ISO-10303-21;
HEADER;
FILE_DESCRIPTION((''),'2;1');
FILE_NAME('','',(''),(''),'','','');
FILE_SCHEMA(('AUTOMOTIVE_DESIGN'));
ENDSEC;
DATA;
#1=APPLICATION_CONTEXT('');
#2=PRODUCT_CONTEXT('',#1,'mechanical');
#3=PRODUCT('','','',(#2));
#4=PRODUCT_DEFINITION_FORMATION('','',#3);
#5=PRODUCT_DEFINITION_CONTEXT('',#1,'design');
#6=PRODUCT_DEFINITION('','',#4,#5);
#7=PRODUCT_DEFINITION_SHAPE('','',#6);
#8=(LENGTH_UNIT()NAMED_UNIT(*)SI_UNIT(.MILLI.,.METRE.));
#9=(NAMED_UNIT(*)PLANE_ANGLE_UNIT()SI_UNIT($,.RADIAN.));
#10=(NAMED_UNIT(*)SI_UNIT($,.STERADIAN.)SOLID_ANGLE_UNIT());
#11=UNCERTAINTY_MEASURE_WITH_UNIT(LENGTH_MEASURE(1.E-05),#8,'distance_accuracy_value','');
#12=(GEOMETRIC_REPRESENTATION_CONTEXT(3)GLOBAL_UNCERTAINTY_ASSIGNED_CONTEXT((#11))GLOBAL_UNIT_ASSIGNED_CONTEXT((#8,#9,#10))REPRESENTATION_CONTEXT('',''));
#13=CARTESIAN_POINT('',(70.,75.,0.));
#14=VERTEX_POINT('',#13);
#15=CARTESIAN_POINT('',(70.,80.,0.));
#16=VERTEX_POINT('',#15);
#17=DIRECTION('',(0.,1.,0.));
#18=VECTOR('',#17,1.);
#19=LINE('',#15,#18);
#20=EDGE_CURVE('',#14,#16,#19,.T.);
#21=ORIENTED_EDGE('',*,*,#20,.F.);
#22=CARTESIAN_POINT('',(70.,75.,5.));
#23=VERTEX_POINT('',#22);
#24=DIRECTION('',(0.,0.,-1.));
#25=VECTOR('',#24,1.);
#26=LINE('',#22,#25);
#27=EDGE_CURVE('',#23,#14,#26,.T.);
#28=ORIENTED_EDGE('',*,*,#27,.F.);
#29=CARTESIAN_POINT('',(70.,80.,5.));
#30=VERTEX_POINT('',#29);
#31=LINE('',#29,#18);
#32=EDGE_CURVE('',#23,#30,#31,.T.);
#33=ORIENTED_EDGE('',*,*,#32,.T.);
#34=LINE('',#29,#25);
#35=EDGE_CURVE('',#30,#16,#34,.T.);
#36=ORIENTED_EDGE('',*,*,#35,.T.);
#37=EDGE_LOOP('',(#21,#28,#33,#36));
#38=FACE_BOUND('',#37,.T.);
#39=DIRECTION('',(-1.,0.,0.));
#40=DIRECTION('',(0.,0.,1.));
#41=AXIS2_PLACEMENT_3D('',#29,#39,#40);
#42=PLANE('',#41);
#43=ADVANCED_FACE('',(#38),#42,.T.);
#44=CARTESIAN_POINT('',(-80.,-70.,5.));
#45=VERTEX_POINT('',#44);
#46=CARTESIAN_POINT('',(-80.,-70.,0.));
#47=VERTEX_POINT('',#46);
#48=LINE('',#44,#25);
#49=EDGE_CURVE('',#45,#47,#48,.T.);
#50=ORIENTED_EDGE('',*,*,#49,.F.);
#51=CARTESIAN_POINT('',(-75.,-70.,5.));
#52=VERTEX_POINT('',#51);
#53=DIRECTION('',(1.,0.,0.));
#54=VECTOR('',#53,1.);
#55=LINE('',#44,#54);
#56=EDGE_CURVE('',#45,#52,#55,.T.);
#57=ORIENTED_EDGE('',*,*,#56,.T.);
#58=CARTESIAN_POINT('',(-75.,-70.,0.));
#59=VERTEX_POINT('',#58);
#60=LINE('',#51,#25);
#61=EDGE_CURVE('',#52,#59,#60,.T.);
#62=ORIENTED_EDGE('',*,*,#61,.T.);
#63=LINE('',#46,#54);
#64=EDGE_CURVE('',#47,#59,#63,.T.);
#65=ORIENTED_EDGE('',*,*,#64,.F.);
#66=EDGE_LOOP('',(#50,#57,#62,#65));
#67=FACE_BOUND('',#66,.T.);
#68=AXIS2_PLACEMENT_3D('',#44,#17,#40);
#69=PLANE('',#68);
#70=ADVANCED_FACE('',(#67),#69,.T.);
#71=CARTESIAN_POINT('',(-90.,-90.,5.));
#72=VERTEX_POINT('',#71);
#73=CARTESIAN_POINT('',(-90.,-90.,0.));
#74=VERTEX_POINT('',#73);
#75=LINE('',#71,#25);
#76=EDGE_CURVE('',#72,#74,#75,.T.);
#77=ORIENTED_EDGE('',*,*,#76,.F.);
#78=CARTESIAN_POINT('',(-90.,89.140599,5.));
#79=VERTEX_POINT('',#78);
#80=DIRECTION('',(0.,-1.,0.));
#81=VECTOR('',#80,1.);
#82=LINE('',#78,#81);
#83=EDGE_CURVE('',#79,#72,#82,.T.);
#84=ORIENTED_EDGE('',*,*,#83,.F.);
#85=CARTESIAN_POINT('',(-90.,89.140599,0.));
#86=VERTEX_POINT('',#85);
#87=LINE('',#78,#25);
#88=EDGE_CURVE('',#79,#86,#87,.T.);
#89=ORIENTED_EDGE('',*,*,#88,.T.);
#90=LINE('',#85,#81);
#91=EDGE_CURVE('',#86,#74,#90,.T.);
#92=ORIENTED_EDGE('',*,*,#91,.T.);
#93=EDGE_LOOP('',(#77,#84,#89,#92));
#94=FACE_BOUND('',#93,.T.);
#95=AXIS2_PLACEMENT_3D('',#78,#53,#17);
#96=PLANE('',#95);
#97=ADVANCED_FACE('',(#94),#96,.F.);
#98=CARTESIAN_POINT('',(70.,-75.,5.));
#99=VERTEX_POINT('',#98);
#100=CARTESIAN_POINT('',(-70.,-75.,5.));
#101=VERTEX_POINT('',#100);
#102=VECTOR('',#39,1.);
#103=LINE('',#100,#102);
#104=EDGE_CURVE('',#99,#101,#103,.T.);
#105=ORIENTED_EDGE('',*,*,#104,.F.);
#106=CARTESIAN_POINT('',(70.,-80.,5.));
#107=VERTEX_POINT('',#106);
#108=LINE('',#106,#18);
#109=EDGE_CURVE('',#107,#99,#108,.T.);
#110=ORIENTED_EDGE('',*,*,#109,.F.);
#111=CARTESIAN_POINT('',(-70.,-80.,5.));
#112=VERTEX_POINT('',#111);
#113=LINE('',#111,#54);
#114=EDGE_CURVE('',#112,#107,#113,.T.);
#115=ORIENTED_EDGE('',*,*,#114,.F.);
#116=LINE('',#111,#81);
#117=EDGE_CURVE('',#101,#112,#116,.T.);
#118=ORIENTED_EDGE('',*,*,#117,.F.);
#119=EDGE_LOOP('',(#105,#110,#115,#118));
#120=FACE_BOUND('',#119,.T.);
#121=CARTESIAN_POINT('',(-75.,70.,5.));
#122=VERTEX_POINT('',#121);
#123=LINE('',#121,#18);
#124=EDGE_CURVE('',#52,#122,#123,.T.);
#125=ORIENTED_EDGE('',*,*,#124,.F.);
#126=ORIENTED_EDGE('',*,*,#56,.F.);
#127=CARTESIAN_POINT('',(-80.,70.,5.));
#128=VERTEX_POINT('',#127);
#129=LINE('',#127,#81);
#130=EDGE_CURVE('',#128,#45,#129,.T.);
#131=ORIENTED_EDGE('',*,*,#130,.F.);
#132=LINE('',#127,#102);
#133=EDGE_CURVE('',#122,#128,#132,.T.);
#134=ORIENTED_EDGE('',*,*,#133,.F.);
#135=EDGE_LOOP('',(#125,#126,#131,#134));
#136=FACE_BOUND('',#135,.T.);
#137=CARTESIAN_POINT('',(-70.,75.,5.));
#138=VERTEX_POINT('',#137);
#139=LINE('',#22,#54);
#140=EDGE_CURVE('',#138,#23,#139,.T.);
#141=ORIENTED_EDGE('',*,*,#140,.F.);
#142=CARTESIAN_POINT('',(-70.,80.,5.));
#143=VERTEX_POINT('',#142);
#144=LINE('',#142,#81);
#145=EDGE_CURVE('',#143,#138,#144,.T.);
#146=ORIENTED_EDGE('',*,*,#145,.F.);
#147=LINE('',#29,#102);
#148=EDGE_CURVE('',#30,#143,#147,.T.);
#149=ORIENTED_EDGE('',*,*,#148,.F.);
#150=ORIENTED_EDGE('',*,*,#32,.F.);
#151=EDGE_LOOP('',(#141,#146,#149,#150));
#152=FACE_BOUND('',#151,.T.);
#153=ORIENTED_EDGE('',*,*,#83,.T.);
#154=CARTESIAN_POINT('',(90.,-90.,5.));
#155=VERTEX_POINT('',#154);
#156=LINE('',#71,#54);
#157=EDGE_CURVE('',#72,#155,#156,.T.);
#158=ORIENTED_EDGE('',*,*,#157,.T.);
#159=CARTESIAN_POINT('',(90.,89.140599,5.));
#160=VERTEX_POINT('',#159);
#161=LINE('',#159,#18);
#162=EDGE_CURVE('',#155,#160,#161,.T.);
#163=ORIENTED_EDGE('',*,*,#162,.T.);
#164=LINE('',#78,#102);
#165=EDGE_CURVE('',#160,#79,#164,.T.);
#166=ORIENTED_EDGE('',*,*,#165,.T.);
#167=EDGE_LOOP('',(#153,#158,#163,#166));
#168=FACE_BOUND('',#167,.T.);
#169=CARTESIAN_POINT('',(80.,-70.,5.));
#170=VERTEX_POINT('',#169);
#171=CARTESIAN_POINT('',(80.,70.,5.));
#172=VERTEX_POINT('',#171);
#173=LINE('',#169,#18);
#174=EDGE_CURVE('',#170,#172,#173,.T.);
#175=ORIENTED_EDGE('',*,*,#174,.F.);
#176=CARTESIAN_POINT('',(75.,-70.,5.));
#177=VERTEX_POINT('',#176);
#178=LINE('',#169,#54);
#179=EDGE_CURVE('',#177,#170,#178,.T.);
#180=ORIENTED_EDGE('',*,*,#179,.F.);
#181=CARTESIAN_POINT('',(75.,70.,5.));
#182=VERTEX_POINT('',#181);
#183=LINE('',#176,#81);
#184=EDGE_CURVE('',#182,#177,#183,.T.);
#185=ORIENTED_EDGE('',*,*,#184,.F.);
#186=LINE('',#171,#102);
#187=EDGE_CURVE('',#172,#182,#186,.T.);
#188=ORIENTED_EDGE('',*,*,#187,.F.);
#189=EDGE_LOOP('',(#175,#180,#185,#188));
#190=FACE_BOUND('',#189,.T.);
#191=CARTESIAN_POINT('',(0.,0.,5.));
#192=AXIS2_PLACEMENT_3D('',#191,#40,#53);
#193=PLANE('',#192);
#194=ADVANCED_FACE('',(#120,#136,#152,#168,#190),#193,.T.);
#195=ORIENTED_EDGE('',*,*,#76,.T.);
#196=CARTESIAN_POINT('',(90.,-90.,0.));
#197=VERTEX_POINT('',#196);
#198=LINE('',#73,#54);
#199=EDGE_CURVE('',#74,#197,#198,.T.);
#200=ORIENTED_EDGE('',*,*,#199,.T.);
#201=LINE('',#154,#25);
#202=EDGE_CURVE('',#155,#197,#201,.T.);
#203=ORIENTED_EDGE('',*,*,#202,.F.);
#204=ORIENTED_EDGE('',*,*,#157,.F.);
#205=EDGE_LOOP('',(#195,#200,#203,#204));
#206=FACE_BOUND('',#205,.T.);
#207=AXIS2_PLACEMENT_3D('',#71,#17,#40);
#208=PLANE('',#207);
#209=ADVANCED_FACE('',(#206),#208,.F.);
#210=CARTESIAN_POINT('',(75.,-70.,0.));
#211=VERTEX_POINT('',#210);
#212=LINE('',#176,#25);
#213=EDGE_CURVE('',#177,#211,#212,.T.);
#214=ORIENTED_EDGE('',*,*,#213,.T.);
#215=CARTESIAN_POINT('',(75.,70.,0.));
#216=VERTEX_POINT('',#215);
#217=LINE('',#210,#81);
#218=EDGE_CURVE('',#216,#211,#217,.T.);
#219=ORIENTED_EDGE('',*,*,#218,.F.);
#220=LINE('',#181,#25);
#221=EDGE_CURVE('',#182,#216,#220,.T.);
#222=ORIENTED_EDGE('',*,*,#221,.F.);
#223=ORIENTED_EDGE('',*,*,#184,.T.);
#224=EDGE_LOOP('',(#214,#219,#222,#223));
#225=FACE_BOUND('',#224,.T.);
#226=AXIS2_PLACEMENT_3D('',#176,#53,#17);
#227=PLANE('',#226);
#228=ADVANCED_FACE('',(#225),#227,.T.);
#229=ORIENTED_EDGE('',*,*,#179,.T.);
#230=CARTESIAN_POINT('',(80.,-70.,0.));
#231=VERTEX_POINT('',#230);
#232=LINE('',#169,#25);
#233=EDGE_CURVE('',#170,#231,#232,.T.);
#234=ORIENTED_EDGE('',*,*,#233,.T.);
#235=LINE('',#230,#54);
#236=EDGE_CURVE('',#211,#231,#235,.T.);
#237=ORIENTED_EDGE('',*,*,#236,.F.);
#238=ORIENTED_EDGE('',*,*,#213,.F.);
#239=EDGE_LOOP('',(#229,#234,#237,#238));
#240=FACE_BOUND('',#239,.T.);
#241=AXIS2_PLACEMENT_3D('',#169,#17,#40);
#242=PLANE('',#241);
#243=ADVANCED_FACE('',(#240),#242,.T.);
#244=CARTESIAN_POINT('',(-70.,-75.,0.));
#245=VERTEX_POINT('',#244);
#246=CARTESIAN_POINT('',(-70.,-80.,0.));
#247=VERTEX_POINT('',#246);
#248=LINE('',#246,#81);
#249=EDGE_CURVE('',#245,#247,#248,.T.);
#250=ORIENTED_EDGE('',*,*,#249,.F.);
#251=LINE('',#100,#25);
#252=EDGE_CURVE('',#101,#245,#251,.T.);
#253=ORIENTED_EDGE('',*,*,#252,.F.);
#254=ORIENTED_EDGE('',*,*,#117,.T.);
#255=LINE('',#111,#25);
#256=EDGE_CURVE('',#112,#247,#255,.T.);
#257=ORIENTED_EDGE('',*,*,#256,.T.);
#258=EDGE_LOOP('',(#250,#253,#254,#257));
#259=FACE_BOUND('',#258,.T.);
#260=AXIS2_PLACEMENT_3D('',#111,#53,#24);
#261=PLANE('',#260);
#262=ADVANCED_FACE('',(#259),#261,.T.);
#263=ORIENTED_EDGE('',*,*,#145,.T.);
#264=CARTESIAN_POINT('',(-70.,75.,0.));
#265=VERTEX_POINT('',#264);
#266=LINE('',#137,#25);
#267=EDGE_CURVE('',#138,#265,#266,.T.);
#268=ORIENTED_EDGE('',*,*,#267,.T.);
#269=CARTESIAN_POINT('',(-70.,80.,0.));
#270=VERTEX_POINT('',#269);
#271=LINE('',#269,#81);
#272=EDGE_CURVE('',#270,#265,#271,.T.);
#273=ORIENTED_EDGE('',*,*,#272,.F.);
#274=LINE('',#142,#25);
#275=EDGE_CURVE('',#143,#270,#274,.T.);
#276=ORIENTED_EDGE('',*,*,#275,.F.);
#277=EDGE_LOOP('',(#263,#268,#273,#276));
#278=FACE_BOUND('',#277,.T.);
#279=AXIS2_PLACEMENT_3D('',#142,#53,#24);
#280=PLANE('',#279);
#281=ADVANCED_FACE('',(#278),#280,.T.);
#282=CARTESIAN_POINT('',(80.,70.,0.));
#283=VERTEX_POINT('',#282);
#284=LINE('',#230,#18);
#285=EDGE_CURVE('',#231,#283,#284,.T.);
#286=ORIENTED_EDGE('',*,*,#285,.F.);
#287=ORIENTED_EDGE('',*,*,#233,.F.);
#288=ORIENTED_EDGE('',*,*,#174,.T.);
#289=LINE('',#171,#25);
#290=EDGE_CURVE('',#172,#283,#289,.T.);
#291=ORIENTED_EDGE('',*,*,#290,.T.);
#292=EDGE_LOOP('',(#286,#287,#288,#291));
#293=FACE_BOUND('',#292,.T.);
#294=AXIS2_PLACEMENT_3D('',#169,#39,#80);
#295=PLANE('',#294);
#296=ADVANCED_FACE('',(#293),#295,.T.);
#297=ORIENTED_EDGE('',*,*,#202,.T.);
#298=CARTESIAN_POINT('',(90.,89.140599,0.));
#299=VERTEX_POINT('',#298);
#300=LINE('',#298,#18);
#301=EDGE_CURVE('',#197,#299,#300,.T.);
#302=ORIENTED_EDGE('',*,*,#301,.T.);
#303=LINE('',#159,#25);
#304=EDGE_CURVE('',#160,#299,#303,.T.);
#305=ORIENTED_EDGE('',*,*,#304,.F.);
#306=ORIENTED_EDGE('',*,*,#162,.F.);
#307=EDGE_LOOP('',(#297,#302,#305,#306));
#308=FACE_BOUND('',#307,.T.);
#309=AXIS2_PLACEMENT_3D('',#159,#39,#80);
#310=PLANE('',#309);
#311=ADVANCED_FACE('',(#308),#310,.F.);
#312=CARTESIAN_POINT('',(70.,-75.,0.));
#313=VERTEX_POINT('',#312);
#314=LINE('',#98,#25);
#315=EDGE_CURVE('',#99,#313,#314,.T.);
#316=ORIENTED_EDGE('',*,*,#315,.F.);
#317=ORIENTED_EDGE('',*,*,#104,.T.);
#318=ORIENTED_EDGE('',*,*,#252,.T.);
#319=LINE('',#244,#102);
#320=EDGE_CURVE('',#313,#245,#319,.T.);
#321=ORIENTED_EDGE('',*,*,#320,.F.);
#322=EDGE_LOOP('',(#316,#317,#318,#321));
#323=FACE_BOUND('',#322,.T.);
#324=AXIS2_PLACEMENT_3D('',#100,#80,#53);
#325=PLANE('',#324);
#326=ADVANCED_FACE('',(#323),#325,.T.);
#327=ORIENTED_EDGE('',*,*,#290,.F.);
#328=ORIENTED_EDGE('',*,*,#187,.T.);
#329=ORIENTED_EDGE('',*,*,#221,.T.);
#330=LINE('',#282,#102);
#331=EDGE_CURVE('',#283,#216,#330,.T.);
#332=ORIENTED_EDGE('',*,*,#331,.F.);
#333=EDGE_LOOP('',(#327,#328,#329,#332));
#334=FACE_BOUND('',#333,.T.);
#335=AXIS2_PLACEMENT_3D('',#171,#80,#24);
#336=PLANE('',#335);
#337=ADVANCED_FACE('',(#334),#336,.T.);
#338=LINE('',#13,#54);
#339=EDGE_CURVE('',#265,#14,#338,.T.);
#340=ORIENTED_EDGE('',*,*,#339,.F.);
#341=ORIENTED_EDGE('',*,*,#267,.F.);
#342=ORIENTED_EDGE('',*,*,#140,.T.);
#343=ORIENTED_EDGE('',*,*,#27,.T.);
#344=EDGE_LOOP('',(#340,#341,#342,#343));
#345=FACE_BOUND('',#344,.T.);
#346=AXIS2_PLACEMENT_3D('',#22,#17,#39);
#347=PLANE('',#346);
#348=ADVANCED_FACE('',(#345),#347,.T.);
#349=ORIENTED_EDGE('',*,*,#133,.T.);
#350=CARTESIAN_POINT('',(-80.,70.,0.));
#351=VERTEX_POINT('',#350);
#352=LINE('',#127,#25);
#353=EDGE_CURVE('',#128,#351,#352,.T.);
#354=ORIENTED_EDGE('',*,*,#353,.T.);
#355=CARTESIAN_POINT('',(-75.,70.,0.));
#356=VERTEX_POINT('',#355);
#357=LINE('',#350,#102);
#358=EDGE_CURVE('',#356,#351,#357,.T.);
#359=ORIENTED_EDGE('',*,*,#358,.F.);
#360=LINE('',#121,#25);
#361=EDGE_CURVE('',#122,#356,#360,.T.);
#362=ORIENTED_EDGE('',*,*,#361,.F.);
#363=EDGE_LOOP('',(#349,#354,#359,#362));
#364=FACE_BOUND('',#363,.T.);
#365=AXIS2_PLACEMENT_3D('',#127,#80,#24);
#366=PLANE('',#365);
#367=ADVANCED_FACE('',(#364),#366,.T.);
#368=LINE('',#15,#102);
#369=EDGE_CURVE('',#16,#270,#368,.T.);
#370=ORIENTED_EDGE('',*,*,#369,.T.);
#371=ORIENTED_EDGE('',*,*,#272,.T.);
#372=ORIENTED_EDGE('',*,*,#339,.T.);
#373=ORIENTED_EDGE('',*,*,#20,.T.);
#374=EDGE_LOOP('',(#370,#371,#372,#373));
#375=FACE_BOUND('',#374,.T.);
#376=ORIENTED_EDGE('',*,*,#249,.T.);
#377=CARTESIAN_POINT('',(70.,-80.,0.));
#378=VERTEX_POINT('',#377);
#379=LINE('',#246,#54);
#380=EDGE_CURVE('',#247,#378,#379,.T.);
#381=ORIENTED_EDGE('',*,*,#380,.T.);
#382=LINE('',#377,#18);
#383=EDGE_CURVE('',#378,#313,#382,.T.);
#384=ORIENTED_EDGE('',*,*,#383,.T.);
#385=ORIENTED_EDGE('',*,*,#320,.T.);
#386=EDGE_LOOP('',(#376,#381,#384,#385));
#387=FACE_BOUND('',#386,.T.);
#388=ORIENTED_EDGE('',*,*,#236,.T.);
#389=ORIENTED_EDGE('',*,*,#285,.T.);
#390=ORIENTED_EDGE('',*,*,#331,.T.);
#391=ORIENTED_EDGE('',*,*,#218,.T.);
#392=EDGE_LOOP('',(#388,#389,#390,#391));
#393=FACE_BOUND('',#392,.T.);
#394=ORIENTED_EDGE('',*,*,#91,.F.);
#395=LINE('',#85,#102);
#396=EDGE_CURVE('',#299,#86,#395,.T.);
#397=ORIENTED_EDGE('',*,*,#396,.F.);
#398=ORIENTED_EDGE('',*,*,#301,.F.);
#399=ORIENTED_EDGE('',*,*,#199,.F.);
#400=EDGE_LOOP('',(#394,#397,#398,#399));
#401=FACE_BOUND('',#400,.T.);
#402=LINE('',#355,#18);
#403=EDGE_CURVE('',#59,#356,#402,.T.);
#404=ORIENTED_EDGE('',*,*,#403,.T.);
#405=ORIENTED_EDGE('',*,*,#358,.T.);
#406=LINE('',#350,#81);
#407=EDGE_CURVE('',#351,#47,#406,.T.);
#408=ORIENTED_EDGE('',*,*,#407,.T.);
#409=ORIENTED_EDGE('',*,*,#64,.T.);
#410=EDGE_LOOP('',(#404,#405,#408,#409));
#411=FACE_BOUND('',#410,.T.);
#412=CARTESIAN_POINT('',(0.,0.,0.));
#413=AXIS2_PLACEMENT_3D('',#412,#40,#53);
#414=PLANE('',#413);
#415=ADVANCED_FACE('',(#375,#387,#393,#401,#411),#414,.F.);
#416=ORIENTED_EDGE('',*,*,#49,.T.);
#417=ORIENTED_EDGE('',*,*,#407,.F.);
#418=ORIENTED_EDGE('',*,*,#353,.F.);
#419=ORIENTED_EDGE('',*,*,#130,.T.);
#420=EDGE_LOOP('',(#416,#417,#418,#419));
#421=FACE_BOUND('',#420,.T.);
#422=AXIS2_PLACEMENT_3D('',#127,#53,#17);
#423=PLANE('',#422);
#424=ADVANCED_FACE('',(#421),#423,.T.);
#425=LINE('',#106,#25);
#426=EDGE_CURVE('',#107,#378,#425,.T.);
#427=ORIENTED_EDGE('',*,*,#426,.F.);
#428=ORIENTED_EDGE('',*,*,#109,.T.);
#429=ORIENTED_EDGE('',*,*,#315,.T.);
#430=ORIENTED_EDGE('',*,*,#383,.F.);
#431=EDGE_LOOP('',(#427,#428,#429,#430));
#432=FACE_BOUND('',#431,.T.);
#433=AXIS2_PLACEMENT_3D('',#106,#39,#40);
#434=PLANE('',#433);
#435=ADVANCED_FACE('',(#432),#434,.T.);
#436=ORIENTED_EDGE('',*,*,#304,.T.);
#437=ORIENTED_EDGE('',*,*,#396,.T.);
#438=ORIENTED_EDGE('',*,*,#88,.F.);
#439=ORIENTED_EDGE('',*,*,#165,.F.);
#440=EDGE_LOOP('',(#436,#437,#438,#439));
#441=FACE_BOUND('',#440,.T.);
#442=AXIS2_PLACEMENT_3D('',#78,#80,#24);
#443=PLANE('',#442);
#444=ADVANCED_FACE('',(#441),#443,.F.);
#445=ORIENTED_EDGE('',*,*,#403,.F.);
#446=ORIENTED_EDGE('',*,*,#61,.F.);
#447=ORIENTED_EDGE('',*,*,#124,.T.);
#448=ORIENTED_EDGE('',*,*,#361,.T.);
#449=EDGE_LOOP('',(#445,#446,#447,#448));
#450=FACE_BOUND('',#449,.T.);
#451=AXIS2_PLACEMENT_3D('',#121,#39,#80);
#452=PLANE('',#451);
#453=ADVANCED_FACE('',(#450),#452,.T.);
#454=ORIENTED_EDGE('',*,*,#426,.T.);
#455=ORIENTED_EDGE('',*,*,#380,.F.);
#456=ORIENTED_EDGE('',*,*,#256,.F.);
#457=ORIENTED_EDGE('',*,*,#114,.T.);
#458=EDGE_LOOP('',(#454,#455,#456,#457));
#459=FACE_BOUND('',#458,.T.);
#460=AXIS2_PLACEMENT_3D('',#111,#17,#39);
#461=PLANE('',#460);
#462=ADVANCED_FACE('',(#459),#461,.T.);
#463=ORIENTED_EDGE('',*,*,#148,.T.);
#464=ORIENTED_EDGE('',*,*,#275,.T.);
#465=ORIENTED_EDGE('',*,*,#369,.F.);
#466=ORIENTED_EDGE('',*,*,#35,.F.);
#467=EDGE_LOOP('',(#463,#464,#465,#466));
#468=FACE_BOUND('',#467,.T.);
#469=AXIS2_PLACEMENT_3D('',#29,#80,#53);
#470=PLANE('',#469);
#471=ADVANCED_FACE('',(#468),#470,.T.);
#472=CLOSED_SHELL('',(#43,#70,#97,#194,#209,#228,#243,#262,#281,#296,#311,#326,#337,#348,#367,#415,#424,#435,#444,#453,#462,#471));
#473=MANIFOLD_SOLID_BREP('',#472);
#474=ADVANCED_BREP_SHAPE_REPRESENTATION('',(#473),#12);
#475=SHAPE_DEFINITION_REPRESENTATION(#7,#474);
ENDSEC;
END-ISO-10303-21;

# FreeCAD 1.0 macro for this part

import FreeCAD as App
import Part
import Sketcher
from FreeCAD import Vector


def add_polygon(sketch, points):
    """Adds a closed chain of lines whose ends are joined by coincident constraints."""
    first, n = sketch.GeometryCount, len(points)
    for a, b in zip(points, points[1:] + points[:1]):
        sketch.addGeometry(Part.LineSegment(App.Vector(*a, 0), App.Vector(*b, 0)), False)
    for i in range(n):
        sketch.addConstraint(Sketcher.Constraint("Coincident", first + i, 2, first + (i + 1) % n, 1))

doc = App.newDocument("Part")
body = doc.addObject("PartDesign::Body", "Body")

# Sketch on XY plane
sketch1 = body.newObject("Sketcher::SketchObject", "Sketch")
sketch1.AttachmentSupport = (doc.getObject("XY_Plane"), [""])
sketch1.MapMode = "FlatFace"
add_polygon(sketch1, [(-90, 89.140599), (-90, -90), (90, -90), (90, 89.140599)])  # lines 0-3
add_polygon(sketch1, [(70, -80), (-70, -80), (-70, -75), (70, -75)])  # lines 4-7
add_polygon(sketch1, [(-75, -70), (-80, -70), (-80, 70), (-75, 70)])  # lines 8-11
add_polygon(sketch1, [(80, -70), (75, -70), (75, 70), (80, 70)])  # lines 12-15
add_polygon(sketch1, [(70, 75), (-70, 75), (-70, 80), (70, 80)])  # lines 16-19
sketch1.addConstraint(Sketcher.Constraint("Vertical", 0))
sketch1.addConstraint(Sketcher.Constraint("Horizontal", 1))
sketch1.addConstraint(Sketcher.Constraint("Vertical", 2))
sketch1.addConstraint(Sketcher.Constraint("Horizontal", 3))
sketch1.addConstraint(Sketcher.Constraint("Horizontal", 4))
sketch1.addConstraint(Sketcher.Constraint("Vertical", 5))
sketch1.addConstraint(Sketcher.Constraint("Horizontal", 6))
sketch1.addConstraint(Sketcher.Constraint("Vertical", 7))
sketch1.addConstraint(Sketcher.Constraint("Horizontal", 8))
sketch1.addConstraint(Sketcher.Constraint("Vertical", 9))
sketch1.addConstraint(Sketcher.Constraint("Horizontal", 10))
sketch1.addConstraint(Sketcher.Constraint("Vertical", 11))
sketch1.addConstraint(Sketcher.Constraint("Horizontal", 12))
sketch1.addConstraint(Sketcher.Constraint("Vertical", 13))
sketch1.addConstraint(Sketcher.Constraint("Horizontal", 14))
sketch1.addConstraint(Sketcher.Constraint("Vertical", 15))
sketch1.addConstraint(Sketcher.Constraint("Horizontal", 16))
sketch1.addConstraint(Sketcher.Constraint("Vertical", 17))
sketch1.addConstraint(Sketcher.Constraint("Horizontal", 18))
sketch1.addConstraint(Sketcher.Constraint("Vertical", 19))
sketch1.addConstraint(Sketcher.Constraint("Symmetric", 10, 2, 12, 2, -1, 1))
sketch1.addConstraint(Sketcher.Constraint("Symmetric", 8, 2, 14, 2, -1, 1))
sketch1.addConstraint(Sketcher.Constraint("Symmetric", 6, 2, 16, 2, -1, 1))
sketch1.addConstraint(Sketcher.Constraint("Symmetric", 4, 2, 18, 2, -1, 1))
sketch1.addConstraint(Sketcher.Constraint("Horizontal", 11, 2, 12, 2))
sketch1.addConstraint(Sketcher.Constraint("Vertical", 5, 2, 16, 2))
sketch1.addConstraint(Sketcher.Constraint("Equal", 14, 5))
sketch1.addConstraint(Sketcher.Constraint("Equal", 18, 9))
sketch1.addConstraint(Sketcher.Constraint("DistanceX", 1, 1, 1, 2, 180.0))
sketch1.addConstraint(Sketcher.Constraint("DistanceX", 4, 2, 4, 1, 140.0))
sketch1.addConstraint(Sketcher.Constraint("DistanceX", 8, 2, 8, 1, 5.0))
sketch1.addConstraint(Sketcher.Constraint("DistanceX", 0, 2, -1, 1, 90.0))
sketch1.addConstraint(Sketcher.Constraint("DistanceY", 0, 2, -1, 1, 90.0))
sketch1.addConstraint(Sketcher.Constraint("DistanceY", 4, 2, -1, 1, 80.0))
sketch1.addConstraint(Sketcher.Constraint("DistanceX", 8, 2, -1, 1, 80.0))
sketch1.addConstraint(Sketcher.Constraint("DistanceY", 0, 2, 0, 1, 179.140599))
pad1 = body.newObject("PartDesign::Pad", "Pad")
pad1.Profile = sketch1
pad1.Length = 5

doc.recompute()
